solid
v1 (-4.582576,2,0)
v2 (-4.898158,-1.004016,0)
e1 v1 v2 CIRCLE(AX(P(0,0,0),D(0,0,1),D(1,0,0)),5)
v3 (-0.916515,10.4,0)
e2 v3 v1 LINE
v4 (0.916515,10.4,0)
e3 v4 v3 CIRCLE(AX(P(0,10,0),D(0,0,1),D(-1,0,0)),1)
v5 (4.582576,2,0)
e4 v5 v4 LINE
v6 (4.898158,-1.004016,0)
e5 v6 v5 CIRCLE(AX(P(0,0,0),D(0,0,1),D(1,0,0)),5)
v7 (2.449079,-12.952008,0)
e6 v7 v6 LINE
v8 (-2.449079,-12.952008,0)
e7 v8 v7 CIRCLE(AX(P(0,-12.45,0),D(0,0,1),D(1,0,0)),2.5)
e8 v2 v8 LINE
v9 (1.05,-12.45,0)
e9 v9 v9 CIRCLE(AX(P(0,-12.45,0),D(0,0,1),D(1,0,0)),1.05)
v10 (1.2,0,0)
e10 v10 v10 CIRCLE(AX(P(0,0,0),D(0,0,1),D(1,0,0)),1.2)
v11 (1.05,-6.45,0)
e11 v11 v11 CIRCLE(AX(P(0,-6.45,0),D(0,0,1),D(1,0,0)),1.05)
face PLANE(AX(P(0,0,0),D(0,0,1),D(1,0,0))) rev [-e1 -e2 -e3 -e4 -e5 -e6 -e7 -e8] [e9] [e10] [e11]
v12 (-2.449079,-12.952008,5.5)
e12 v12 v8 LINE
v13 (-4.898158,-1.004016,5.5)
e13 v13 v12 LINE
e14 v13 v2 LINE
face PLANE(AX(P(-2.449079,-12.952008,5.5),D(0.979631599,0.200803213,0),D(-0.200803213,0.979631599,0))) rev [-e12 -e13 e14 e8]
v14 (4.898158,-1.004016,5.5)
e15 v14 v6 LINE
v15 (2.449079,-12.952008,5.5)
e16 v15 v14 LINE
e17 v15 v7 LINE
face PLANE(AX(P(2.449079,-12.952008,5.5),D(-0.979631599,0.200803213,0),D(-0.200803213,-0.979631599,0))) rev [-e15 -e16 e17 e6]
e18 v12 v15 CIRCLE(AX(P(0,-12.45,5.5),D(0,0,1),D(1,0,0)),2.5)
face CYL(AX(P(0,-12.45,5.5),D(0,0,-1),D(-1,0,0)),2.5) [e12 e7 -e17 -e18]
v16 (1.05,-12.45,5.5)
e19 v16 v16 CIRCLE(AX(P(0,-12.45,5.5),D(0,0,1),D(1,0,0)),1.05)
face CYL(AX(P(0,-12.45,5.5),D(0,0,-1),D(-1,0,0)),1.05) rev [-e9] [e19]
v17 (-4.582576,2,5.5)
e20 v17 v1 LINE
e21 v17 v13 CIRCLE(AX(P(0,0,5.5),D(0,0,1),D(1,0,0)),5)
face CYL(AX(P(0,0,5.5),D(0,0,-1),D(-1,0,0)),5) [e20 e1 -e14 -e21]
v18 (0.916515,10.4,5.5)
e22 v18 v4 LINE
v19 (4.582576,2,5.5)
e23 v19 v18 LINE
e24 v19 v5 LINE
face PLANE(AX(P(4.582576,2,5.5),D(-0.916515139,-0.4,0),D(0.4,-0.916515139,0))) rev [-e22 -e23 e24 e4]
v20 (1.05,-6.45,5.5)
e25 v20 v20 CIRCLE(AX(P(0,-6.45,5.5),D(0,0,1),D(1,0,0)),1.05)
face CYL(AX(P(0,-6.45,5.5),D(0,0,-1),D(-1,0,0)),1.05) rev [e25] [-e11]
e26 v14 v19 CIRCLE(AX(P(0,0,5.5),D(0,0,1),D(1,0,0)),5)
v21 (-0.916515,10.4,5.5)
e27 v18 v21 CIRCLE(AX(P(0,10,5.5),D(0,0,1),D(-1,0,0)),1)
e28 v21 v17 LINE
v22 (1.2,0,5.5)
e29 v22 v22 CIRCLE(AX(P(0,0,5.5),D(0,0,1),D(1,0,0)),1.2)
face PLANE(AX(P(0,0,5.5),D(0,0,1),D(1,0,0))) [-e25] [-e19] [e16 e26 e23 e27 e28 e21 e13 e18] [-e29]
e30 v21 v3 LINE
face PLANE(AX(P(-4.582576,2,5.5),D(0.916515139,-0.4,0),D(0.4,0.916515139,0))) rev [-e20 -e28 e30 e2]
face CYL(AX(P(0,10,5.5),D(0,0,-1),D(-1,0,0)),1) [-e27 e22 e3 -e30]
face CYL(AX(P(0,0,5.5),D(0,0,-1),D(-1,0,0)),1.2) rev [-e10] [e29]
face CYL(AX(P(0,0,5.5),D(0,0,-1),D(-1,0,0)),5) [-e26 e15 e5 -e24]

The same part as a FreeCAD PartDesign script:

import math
import FreeCAD as App
import Part
import Sketcher
Q = App.Units.Quantity

doc = App.newDocument("Part")
params = doc.addObject("Spreadsheet::Sheet", "Params")
for row, (alias, value) in enumerate([
    ("sketch1_radius", "5 mm"),
    ("sketch1_radius2", "1 mm"),
    ("sketch1_diameter", "2.1 mm"),
    ("sketch1_diameter2", "2.4 mm"),
    ("sketch1_radius3", "2.5 mm"),
    ("pad1_length", "5.5 mm"),
], start=1):
    params.set(f"A{row}", alias)
    params.set(f"B{row}", "=" + value)
    params.setAlias(f"B{row}", alias)

body = doc.addObject("PartDesign::Body", "Body")

sketch1 = doc.addObject("Sketcher::SketchObject", "Sketch")
body.addObject(sketch1)
sketch1.AttachmentSupport = (doc.XY_Plane, [""])
sketch1.MapMode = "FlatFace"
sketch1.addGeometry(Part.LineSegment(App.Vector(-0.9, 10.4, 0), App.Vector(-4.6, 2, 0)), False)
sketch1.addGeometry(Part.ArcOfCircle(Part.Circle(App.Vector(0, 0, 0), App.Vector(0, 0, 1), 5), math.radians(156), math.radians(192)), False)
sketch1.addGeometry(Part.LineSegment(App.Vector(-4.9, -1, 0), App.Vector(-2.4, -13, 0)), False)
sketch1.addGeometry(Part.ArcOfCircle(Part.Circle(App.Vector(0, -12.5, 0), App.Vector(0, 0, 1), 2.5), math.radians(-168), math.radians(-12)), False)
sketch1.addGeometry(Part.LineSegment(App.Vector(2.4, -13, 0), App.Vector(4.9, -1, 0)), False)
sketch1.addGeometry(Part.ArcOfCircle(Part.Circle(App.Vector(0, 0, 0), App.Vector(0, 0, 1), 5), math.radians(-12), math.radians(24)), False)
sketch1.addGeometry(Part.LineSegment(App.Vector(4.6, 2, 0), App.Vector(0.9, 10.4, 0)), False)
sketch1.addGeometry(Part.ArcOfCircle(Part.Circle(App.Vector(0, 10, 0), App.Vector(0, 0, 1), 1), math.radians(24), math.radians(156)), False)
sketch1.addGeometry(Part.Circle(App.Vector(0, -12.4, 0), App.Vector(0, 0, 1), 1.1), False)
sketch1.addGeometry(Part.Circle(App.Vector(0, -6.5, 0), App.Vector(0, 0, 1), 1.1), False)
sketch1.addGeometry(Part.Circle(App.Vector(0, 0, 0), App.Vector(0, 0, 1), 1.2), False)
sketch1.addConstraint(Sketcher.Constraint("Tangent", 0, 2, 1, 1))
sketch1.addConstraint(Sketcher.Constraint("Tangent", 1, 2, 2, 1))
sketch1.addConstraint(Sketcher.Constraint("Tangent", 2, 2, 3, 1))
sketch1.addConstraint(Sketcher.Constraint("Tangent", 3, 2, 4, 1))
sketch1.addConstraint(Sketcher.Constraint("Tangent", 4, 2, 5, 1))
sketch1.addConstraint(Sketcher.Constraint("Tangent", 5, 2, 6, 1))
sketch1.addConstraint(Sketcher.Constraint("Tangent", 6, 2, 7, 1))
sketch1.addConstraint(Sketcher.Constraint("Tangent", 7, 2, 0, 1))
sketch1.addConstraint(Sketcher.Constraint("Coincident", 1, 3, -1, 1))
sketch1.addConstraint(Sketcher.Constraint("Coincident", 5, 3, -1, 1))
sketch1.addConstraint(Sketcher.Constraint("Coincident", 10, 3, -1, 1))
sketch1.addConstraint(Sketcher.Constraint("Coincident", 8, 3, 3, 3))
sketch1.addConstraint(Sketcher.Constraint("Equal", 1, 5))
sketch1.addConstraint(Sketcher.Constraint("Equal", 8, 9))
sketch1.addConstraint(Sketcher.Constraint("PointOnObject", 3, 3, -2))
sketch1.addConstraint(Sketcher.Constraint("PointOnObject", 7, 3, -2))
sketch1.addConstraint(Sketcher.Constraint("PointOnObject", 9, 3, -2))
sketch1.addConstraint(Sketcher.Constraint("Radius", 1, Q("5 mm")))
sketch1.addConstraint(Sketcher.Constraint("Radius", 7, Q("1 mm")))
sketch1.addConstraint(Sketcher.Constraint("Diameter", 8, Q("2.1 mm")))
sketch1.addConstraint(Sketcher.Constraint("Diameter", 10, Q("2.4 mm")))
sketch1.addConstraint(Sketcher.Constraint("Radius", 3, Q("2.5 mm")))
sketch1.addConstraint(Sketcher.Constraint("DistanceY", -1, 1, 7, 3, Q("10 mm")))
sketch1.addConstraint(Sketcher.Constraint("DistanceY", 8, 3, 9, 3, Q("6 mm")))
sketch1.addConstraint(Sketcher.Constraint("DistanceY", 3, 3, -1, 1, Q("12.45 mm")))
sketch1.setExpression("Constraints[17]", "Params.sketch1_radius")
sketch1.setExpression("Constraints[18]", "Params.sketch1_radius2")
sketch1.setExpression("Constraints[19]", "Params.sketch1_diameter")
sketch1.setExpression("Constraints[20]", "Params.sketch1_diameter2")
sketch1.setExpression("Constraints[21]", "Params.sketch1_radius3")
pad1 = doc.addObject("PartDesign::Pad", "Pad")
body.addObject(pad1)
pad1.Profile = sketch1
pad1.setExpression("Length", "Params.pad1_length")

doc.recompute()
